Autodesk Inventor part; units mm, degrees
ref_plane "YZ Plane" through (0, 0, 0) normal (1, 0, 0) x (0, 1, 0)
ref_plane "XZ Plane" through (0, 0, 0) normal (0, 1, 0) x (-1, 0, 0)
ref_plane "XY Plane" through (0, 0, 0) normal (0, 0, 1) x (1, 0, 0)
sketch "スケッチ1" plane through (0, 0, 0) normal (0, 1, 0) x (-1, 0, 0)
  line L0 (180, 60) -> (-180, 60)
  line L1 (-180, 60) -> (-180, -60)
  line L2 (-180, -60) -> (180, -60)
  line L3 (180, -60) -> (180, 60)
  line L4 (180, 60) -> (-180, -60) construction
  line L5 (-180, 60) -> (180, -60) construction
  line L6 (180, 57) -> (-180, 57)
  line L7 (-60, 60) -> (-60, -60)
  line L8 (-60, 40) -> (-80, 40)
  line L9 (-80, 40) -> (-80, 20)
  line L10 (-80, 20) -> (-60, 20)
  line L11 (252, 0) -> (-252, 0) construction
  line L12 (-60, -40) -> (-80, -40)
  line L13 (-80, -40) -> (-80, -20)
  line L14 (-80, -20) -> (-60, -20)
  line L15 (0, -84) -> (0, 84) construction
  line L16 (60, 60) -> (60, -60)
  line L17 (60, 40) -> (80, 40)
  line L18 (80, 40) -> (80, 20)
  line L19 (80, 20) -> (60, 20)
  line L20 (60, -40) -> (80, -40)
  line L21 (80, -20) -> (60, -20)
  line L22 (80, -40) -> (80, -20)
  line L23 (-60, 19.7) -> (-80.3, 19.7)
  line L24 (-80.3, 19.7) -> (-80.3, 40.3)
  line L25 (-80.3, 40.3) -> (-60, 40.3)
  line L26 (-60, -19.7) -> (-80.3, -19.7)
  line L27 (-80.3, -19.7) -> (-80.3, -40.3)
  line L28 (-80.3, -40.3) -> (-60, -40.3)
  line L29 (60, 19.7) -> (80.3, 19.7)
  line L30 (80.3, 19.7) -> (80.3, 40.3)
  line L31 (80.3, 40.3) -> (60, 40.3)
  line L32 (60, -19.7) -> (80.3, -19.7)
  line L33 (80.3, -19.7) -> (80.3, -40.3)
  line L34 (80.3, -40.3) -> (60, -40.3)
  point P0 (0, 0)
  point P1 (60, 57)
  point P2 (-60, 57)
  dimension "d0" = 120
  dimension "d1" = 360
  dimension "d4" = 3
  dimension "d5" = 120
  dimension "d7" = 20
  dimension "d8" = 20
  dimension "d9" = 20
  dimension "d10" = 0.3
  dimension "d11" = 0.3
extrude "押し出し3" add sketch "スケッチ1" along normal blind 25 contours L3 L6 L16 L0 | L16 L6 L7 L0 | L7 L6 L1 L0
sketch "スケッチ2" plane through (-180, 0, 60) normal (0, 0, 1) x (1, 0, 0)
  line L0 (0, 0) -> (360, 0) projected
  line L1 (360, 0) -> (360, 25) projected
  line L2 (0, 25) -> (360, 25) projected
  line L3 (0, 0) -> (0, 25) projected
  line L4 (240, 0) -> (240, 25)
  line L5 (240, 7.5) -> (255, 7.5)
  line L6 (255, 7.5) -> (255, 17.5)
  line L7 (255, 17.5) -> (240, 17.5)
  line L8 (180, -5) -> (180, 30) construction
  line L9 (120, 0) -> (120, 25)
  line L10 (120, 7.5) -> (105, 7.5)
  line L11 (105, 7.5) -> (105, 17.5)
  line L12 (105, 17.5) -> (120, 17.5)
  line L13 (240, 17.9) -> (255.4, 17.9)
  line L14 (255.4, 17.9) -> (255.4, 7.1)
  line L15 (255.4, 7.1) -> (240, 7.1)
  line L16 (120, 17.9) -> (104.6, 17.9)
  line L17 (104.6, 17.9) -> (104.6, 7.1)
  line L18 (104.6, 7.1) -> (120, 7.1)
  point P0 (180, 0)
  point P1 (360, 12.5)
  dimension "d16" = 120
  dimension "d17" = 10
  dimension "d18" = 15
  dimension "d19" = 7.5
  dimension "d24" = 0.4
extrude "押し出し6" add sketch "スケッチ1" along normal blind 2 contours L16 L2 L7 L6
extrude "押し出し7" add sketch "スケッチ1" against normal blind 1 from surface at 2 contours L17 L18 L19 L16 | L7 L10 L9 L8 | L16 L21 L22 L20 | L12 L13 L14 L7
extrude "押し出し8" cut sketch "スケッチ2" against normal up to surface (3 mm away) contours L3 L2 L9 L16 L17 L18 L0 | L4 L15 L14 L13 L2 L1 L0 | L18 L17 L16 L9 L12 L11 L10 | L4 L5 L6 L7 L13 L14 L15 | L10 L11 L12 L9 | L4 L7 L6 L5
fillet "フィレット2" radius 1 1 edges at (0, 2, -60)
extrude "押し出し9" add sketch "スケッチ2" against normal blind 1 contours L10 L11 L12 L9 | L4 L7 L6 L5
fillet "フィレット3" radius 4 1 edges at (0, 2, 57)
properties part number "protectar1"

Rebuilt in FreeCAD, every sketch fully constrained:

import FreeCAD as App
import Part
import Sketcher

V = App.Vector
Q = App.Units.Quantity


def edges_at(feature, points):
    """Names of the edges that pass closest to the given points."""
    edges = feature.Shape.Edges
    near = lambda p: min(range(len(edges)), key=lambda i: edges[i].distToShape(Part.Vertex(*p))[0])
    return sorted({f"Edge{near(p) + 1}" for p in points})

doc = App.newDocument("Part")
body = doc.addObject("PartDesign::Body", "Body")

# Sketch on XZ plane
sketch1 = doc.addObject("Sketcher::SketchObject", "Sketch")
body.addObject(sketch1)
sketch1.AttachmentSupport = (doc.XZ_Plane, [""])
sketch1.MapMode = "FlatFace"
sketch1.addGeometry(Part.LineSegment(V(-180, 57, 0), V(-180, 60, 0)), False)
sketch1.addGeometry(Part.LineSegment(V(-180, 60, 0), V(180, 60, 0)), False)
sketch1.addGeometry(Part.LineSegment(V(180, 60, 0), V(180, 57, 0)), False)
sketch1.addGeometry(Part.LineSegment(V(180, 57, 0), V(-180, 57, 0)), False)
sketch1.addConstraint(Sketcher.Constraint("Coincident", 0, 2, 1, 1))
sketch1.addConstraint(Sketcher.Constraint("Coincident", 1, 2, 2, 1))
sketch1.addConstraint(Sketcher.Constraint("Coincident", 2, 2, 3, 1))
sketch1.addConstraint(Sketcher.Constraint("Coincident", 3, 2, 0, 1))
sketch1.addConstraint(Sketcher.Constraint("Vertical", 0))
sketch1.addConstraint(Sketcher.Constraint("Horizontal", 1))
sketch1.addConstraint(Sketcher.Constraint("Vertical", 2))
sketch1.addConstraint(Sketcher.Constraint("Horizontal", 3))
sketch1.addConstraint(Sketcher.Constraint("DistanceX", 1, 1, 1, 2, Q("360 mm")))
sketch1.addConstraint(Sketcher.Constraint("DistanceY", 0, 1, 0, 2, Q("3 mm")))
sketch1.addConstraint(Sketcher.Constraint("DistanceX", 0, 2, -1, 1, Q("180 mm")))
sketch1.addConstraint(Sketcher.Constraint("DistanceY", -1, 1, 0, 2, Q("60 mm")))
pad1 = doc.addObject("PartDesign::Pad", "Pad")
body.addObject(pad1)
pad1.Profile = sketch1
pad1.Length = 25
pad1.Reversed = True

# Sketch on XZ plane
sketch2 = doc.addObject("Sketcher::SketchObject", "Sketch001")
body.addObject(sketch2)
sketch2.AttachmentSupport = (doc.XZ_Plane, [""])
sketch2.MapMode = "FlatFace"
sketch2.addGeometry(Part.LineSegment(V(-60, -60, 0), V(-60, 57, 0)), False)
sketch2.addGeometry(Part.LineSegment(V(-60, 57, 0), V(60, 57, 0)), False)
sketch2.addGeometry(Part.LineSegment(V(60, 57, 0), V(60, -60, 0)), False)
sketch2.addGeometry(Part.LineSegment(V(60, -60, 0), V(-60, -60, 0)), False)
sketch2.addConstraint(Sketcher.Constraint("Coincident", 0, 2, 1, 1))
sketch2.addConstraint(Sketcher.Constraint("Coincident", 1, 2, 2, 1))
sketch2.addConstraint(Sketcher.Constraint("Coincident", 2, 2, 3, 1))
sketch2.addConstraint(Sketcher.Constraint("Coincident", 3, 2, 0, 1))
sketch2.addConstraint(Sketcher.Constraint("Vertical", 0))
sketch2.addConstraint(Sketcher.Constraint("Horizontal", 1))
sketch2.addConstraint(Sketcher.Constraint("Vertical", 2))
sketch2.addConstraint(Sketcher.Constraint("Horizontal", 3))
sketch2.addConstraint(Sketcher.Constraint("DistanceX", 1, 1, 1, 2, Q("120 mm")))
sketch2.addConstraint(Sketcher.Constraint("DistanceY", 0, 1, 0, 2, Q("117 mm")))
sketch2.addConstraint(Sketcher.Constraint("DistanceX", 0, 2, -1, 1, Q("60 mm")))
sketch2.addConstraint(Sketcher.Constraint("DistanceY", -1, 1, 0, 2, Q("57 mm")))
pad2 = doc.addObject("PartDesign::Pad", "Pad001")
body.addObject(pad2)
pad2.Profile = sketch2
pad2.Length = 2
pad2.Reversed = True

# Sketch on XZ plane
sketch3 = doc.addObject("Sketcher::SketchObject", "Sketch002")
body.addObject(sketch3)
sketch3.AttachmentSupport = (doc.XZ_Plane, [""])
sketch3.MapMode = "FlatFace"
sketch3.AttachmentOffset = App.Placement(V(0, 0, -2), App.Rotation())
sketch3.addGeometry(Part.LineSegment(V(-80, 40, 0), V(-60, 40, 0)), False)
sketch3.addGeometry(Part.LineSegment(V(-60, 40, 0), V(-60, 20, 0)), False)
sketch3.addGeometry(Part.LineSegment(V(-60, 20, 0), V(-80, 20, 0)), False)
sketch3.addGeometry(Part.LineSegment(V(-80, 20, 0), V(-80, 40, 0)), False)
sketch3.addGeometry(Part.LineSegment(V(60, 20, 0), V(60, 40, 0)), False)
sketch3.addGeometry(Part.LineSegment(V(60, 40, 0), V(80, 40, 0)), False)
sketch3.addGeometry(Part.LineSegment(V(80, 40, 0), V(80, 20, 0)), False)
sketch3.addGeometry(Part.LineSegment(V(80, 20, 0), V(60, 20, 0)), False)
sketch3.addGeometry(Part.LineSegment(V(-60, -20, 0), V(-60, -40, 0)), False)
sketch3.addGeometry(Part.LineSegment(V(-60, -40, 0), V(-80, -40, 0)), False)
sketch3.addGeometry(Part.LineSegment(V(-80, -40, 0), V(-80, -20, 0)), False)
sketch3.addGeometry(Part.LineSegment(V(-80, -20, 0), V(-60, -20, 0)), False)
sketch3.addGeometry(Part.LineSegment(V(80, -40, 0), V(60, -40, 0)), False)
sketch3.addGeometry(Part.LineSegment(V(60, -40, 0), V(60, -20, 0)), False)
sketch3.addGeometry(Part.LineSegment(V(60, -20, 0), V(80, -20, 0)), False)
sketch3.addGeometry(Part.LineSegment(V(80, -20, 0), V(80, -40, 0)), False)
sketch3.addConstraint(Sketcher.Constraint("Coincident", 0, 2, 1, 1))
sketch3.addConstraint(Sketcher.Constraint("Coincident", 1, 2, 2, 1))
sketch3.addConstraint(Sketcher.Constraint("Coincident", 2, 2, 3, 1))
sketch3.addConstraint(Sketcher.Constraint("Coincident", 3, 2, 0, 1))
sketch3.addConstraint(Sketcher.Constraint("Coincident", 4, 2, 5, 1))
sketch3.addConstraint(Sketcher.Constraint("Coincident", 5, 2, 6, 1))
sketch3.addConstraint(Sketcher.Constraint("Coincident", 6, 2, 7, 1))
sketch3.addConstraint(Sketcher.Constraint("Coincident", 7, 2, 4, 1))
sketch3.addConstraint(Sketcher.Constraint("Coincident", 8, 2, 9, 1))
sketch3.addConstraint(Sketcher.Constraint("Coincident", 9, 2, 10, 1))
sketch3.addConstraint(Sketcher.Constraint("Coincident", 10, 2, 11, 1))
sketch3.addConstraint(Sketcher.Constraint("Coincident", 11, 2, 8, 1))
sketch3.addConstraint(Sketcher.Constraint("Coincident", 12, 2, 13, 1))
sketch3.addConstraint(Sketcher.Constraint("Coincident", 13, 2, 14, 1))
sketch3.addConstraint(Sketcher.Constraint("Coincident", 14, 2, 15, 1))
sketch3.addConstraint(Sketcher.Constraint("Coincident", 15, 2, 12, 1))
sketch3.addConstraint(Sketcher.Constraint("Horizontal", 0))
sketch3.addConstraint(Sketcher.Constraint("Vertical", 1))
sketch3.addConstraint(Sketcher.Constraint("Horizontal", 2))
sketch3.addConstraint(Sketcher.Constraint("Vertical", 3))
sketch3.addConstraint(Sketcher.Constraint("Vertical", 4))
sketch3.addConstraint(Sketcher.Constraint("Horizontal", 5))
sketch3.addConstraint(Sketcher.Constraint("Vertical", 6))
sketch3.addConstraint(Sketcher.Constraint("Horizontal", 7))
sketch3.addConstraint(Sketcher.Constraint("Vertical", 8))
sketch3.addConstraint(Sketcher.Constraint("Horizontal", 9))
sketch3.addConstraint(Sketcher.Constraint("Vertical", 10))
sketch3.addConstraint(Sketcher.Constraint("Horizontal", 11))
sketch3.addConstraint(Sketcher.Constraint("Horizontal", 12))
sketch3.addConstraint(Sketcher.Constraint("Vertical", 13))
sketch3.addConstraint(Sketcher.Constraint("Horizontal", 14))
sketch3.addConstraint(Sketcher.Constraint("Vertical", 15))
sketch3.addConstraint(Sketcher.Constraint("Symmetric", 4, 2, 8, 2, -1, 1))
sketch3.addConstraint(Sketcher.Constraint("Symmetric", 6, 2, 10, 2, -1, 1))
sketch3.addConstraint(Sketcher.Constraint("Symmetric", 0, 2, 12, 2, -1, 1))
sketch3.addConstraint(Sketcher.Constraint("Symmetric", 2, 2, 14, 2, -1, 1))
sketch3.addConstraint(Sketcher.Constraint("Symmetric", 0, 2, 4, 2, -2))
sketch3.addConstraint(Sketcher.Constraint("Symmetric", 2, 2, 6, 2, -2))
sketch3.addConstraint(Sketcher.Constraint("Equal", 14, 1))
sketch3.addConstraint(Sketcher.Constraint("DistanceX", 0, 1, 0, 2, Q("20 mm")))
sketch3.addConstraint(Sketcher.Constraint("DistanceY", -1, 1, 1, 2, Q("20 mm")))
sketch3.addConstraint(Sketcher.Constraint("DistanceX", 0, 2, 4, 2, Q("120 mm")))
pad3 = doc.addObject("PartDesign::Pad", "Pad002")
body.addObject(pad3)
pad3.Profile = sketch3
pad3.Length = 1

# Sketch on XY plane
sketch4 = doc.addObject("Sketcher::SketchObject", "Sketch003")
body.addObject(sketch4)
sketch4.AttachmentSupport = (doc.XY_Plane, [""])
sketch4.MapMode = "FlatFace"
sketch4.AttachmentOffset = App.Placement(V(0, 0, 60), App.Rotation())
sketch4.addGeometry(Part.LineSegment(V(-180, 25, 0), V(-180, 0, 0)), False)
sketch4.addGeometry(Part.LineSegment(V(-180, 0, 0), V(-60, 0, 0)), False)
sketch4.addGeometry(Part.LineSegment(V(-60, 0, 0), V(-60, 25, 0)), False)
sketch4.addGeometry(Part.LineSegment(V(-60, 25, 0), V(-180, 25, 0)), False)
sketch4.addGeometry(Part.LineSegment(V(60, 0, 0), V(180, 0, 0)), False)
sketch4.addGeometry(Part.LineSegment(V(180, 0, 0), V(180, 25, 0)), False)
sketch4.addGeometry(Part.LineSegment(V(180, 25, 0), V(60, 25, 0)), False)
sketch4.addGeometry(Part.LineSegment(V(60, 25, 0), V(60, 0, 0)), False)
sketch4.addConstraint(Sketcher.Constraint("Coincident", 0, 2, 1, 1))
sketch4.addConstraint(Sketcher.Constraint("Coincident", 1, 2, 2, 1))
sketch4.addConstraint(Sketcher.Constraint("Coincident", 2, 2, 3, 1))
sketch4.addConstraint(Sketcher.Constraint("Coincident", 3, 2, 0, 1))
sketch4.addConstraint(Sketcher.Constraint("Coincident", 4, 2, 5, 1))
sketch4.addConstraint(Sketcher.Constraint("Coincident", 5, 2, 6, 1))
sketch4.addConstraint(Sketcher.Constraint("Coincident", 6, 2, 7, 1))
sketch4.addConstraint(Sketcher.Constraint("Coincident", 7, 2, 4, 1))
sketch4.addConstraint(Sketcher.Constraint("Vertical", 0))
sketch4.addConstraint(Sketcher.Constraint("Horizontal", 1))
sketch4.addConstraint(Sketcher.Constraint("Vertical", 2))
sketch4.addConstraint(Sketcher.Constraint("Horizontal", 3))
sketch4.addConstraint(Sketcher.Constraint("Horizontal", 4))
sketch4.addConstraint(Sketcher.Constraint("Vertical", 5))
sketch4.addConstraint(Sketcher.Constraint("Horizontal", 6))
sketch4.addConstraint(Sketcher.Constraint("Vertical", 7))
sketch4.addConstraint(Sketcher.Constraint("Symmetric", 0, 2, 4, 2, -1, 1))
sketch4.addConstraint(Sketcher.Constraint("Symmetric", 2, 2, 6, 2, -2))
sketch4.addConstraint(Sketcher.Constraint("PointOnObject", 0, 2, -1))
sketch4.addConstraint(Sketcher.Constraint("DistanceX", 1, 1, 1, 2, Q("120 mm")))
sketch4.addConstraint(Sketcher.Constraint("DistanceX", 2, 2, 6, 2, Q("120 mm")))
sketch4.addConstraint(Sketcher.Constraint("DistanceY", 0, 2, 0, 1, Q("25 mm")))
pocket1 = doc.addObject("PartDesign::Pocket", "Pocket")
body.addObject(pocket1)
pocket1.Profile = sketch4
pocket1.Length = 3
doc.recompute()

fillet = doc.addObject("PartDesign::Fillet", "Fillet")
body.addObject(fillet)
fillet.Base = (pocket1, edges_at(pocket1, [(0, 2, -60)]))
fillet.Radius = 1

# Sketch on XY plane
sketch5 = doc.addObject("Sketcher::SketchObject", "Sketch004")
body.addObject(sketch5)
sketch5.AttachmentSupport = (doc.XY_Plane, [""])
sketch5.MapMode = "FlatFace"
sketch5.AttachmentOffset = App.Placement(V(0, 0, 60), App.Rotation())
sketch5.addGeometry(Part.LineSegment(V(-75, 7.5, 0), V(-60, 7.5, 0)), False)
sketch5.addGeometry(Part.LineSegment(V(-60, 7.5, 0), V(-60, 17.5, 0)), False)
sketch5.addGeometry(Part.LineSegment(V(-60, 17.5, 0), V(-75, 17.5, 0)), False)
sketch5.addGeometry(Part.LineSegment(V(-75, 17.5, 0), V(-75, 7.5, 0)), False)
sketch5.addGeometry(Part.LineSegment(V(60, 17.5, 0), V(60, 7.5, 0)), False)
sketch5.addGeometry(Part.LineSegment(V(60, 7.5, 0), V(75, 7.5, 0)), False)
sketch5.addGeometry(Part.LineSegment(V(75, 7.5, 0), V(75, 17.5, 0)), False)
sketch5.addGeometry(Part.LineSegment(V(75, 17.5, 0), V(60, 17.5, 0)), False)
sketch5.addConstraint(Sketcher.Constraint("Coincident", 0, 2, 1, 1))
sketch5.addConstraint(Sketcher.Constraint("Coincident", 1, 2, 2, 1))
sketch5.addConstraint(Sketcher.Constraint("Coincident", 2, 2, 3, 1))
sketch5.addConstraint(Sketcher.Constraint("Coincident", 3, 2, 0, 1))
sketch5.addConstraint(Sketcher.Constraint("Coincident", 4, 2, 5, 1))
sketch5.addConstraint(Sketcher.Constraint("Coincident", 5, 2, 6, 1))
sketch5.addConstraint(Sketcher.Constraint("Coincident", 6, 2, 7, 1))
sketch5.addConstraint(Sketcher.Constraint("Coincident", 7, 2, 4, 1))
sketch5.addConstraint(Sketcher.Constraint("Horizontal", 0))
sketch5.addConstraint(Sketcher.Constraint("Vertical", 1))
sketch5.addConstraint(Sketcher.Constraint("Horizontal", 2))
sketch5.addConstraint(Sketcher.Constraint("Vertical", 3))
sketch5.addConstraint(Sketcher.Constraint("Vertical", 4))
sketch5.addConstraint(Sketcher.Constraint("Horizontal", 5))
sketch5.addConstraint(Sketcher.Constraint("Vertical", 6))
sketch5.addConstraint(Sketcher.Constraint("Horizontal", 7))
sketch5.addConstraint(Sketcher.Constraint("Symmetric", 0, 2, 4, 2, -2))
sketch5.addConstraint(Sketcher.Constraint("Symmetric", 2, 2, 6, 2, -2))
sketch5.addConstraint(Sketcher.Constraint("DistanceX", 0, 1, 0, 2, Q("15 mm")))
sketch5.addConstraint(Sketcher.Constraint("DistanceY", 1, 1, 1, 2, Q("10 mm")))
sketch5.addConstraint(Sketcher.Constraint("DistanceX", 0, 2, 4, 2, Q("120 mm")))
sketch5.addConstraint(Sketcher.Constraint("DistanceY", -1, 1, 0, 2, Q("7.5 mm")))
pad4 = doc.addObject("PartDesign::Pad", "Pad003")
body.addObject(pad4)
pad4.Profile = sketch5
pad4.Length = 1
pad4.Reversed = True
doc.recompute()

fillet2 = doc.addObject("PartDesign::Fillet", "Fillet001")
body.addObject(fillet2)
fillet2.Base = (pad4, edges_at(pad4, [(0, 2, 57)]))
fillet2.Radius = 4

doc.recompute()
